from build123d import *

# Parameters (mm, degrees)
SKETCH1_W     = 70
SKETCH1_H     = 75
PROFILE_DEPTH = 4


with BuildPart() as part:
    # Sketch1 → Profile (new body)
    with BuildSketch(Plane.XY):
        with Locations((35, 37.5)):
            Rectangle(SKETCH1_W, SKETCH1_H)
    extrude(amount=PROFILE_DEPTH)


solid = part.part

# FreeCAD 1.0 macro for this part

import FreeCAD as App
import Part
import Sketcher
from FreeCAD import Vector


def add_polygon(sketch, points):
    """Adds a closed chain of lines whose ends are joined by coincident constraints."""
    first, n = sketch.GeometryCount, len(points)
    for a, b in zip(points, points[1:] + points[:1]):
        sketch.addGeometry(Part.LineSegment(App.Vector(*a, 0), App.Vector(*b, 0)), False)
    for i in range(n):
        sketch.addConstraint(Sketcher.Constraint("Coincident", first + i, 2, first + (i + 1) % n, 1))

doc = App.newDocument("Part")
body = doc.addObject("PartDesign::Body", "Body")

# Sketch on XY plane
sketch1 = body.newObject("Sketcher::SketchObject", "Sketch")
sketch1.AttachmentSupport = (doc.getObject("XY_Plane"), [""])
sketch1.MapMode = "FlatFace"
add_polygon(sketch1, [(0, 75), (0, 0), (70, 0), (70, 75)])  # lines 0-3
sketch1.addConstraint(Sketcher.Constraint("Vertical", 0))
sketch1.addConstraint(Sketcher.Constraint("Horizontal", 1))
sketch1.addConstraint(Sketcher.Constraint("Vertical", 2))
sketch1.addConstraint(Sketcher.Constraint("Horizontal", 3))
sketch1.addConstraint(Sketcher.Constraint("Coincident", 0, 2, -1, 1))
sketch1.addConstraint(Sketcher.Constraint("DistanceX", 1, 1, 1, 2, 70.0))
sketch1.addConstraint(Sketcher.Constraint("DistanceY", 0, 2, 0, 1, 75.0))
pad1 = body.newObject("PartDesign::Pad", "Pad")
pad1.Profile = sketch1
pad1.Length = 4

doc.recompute()
